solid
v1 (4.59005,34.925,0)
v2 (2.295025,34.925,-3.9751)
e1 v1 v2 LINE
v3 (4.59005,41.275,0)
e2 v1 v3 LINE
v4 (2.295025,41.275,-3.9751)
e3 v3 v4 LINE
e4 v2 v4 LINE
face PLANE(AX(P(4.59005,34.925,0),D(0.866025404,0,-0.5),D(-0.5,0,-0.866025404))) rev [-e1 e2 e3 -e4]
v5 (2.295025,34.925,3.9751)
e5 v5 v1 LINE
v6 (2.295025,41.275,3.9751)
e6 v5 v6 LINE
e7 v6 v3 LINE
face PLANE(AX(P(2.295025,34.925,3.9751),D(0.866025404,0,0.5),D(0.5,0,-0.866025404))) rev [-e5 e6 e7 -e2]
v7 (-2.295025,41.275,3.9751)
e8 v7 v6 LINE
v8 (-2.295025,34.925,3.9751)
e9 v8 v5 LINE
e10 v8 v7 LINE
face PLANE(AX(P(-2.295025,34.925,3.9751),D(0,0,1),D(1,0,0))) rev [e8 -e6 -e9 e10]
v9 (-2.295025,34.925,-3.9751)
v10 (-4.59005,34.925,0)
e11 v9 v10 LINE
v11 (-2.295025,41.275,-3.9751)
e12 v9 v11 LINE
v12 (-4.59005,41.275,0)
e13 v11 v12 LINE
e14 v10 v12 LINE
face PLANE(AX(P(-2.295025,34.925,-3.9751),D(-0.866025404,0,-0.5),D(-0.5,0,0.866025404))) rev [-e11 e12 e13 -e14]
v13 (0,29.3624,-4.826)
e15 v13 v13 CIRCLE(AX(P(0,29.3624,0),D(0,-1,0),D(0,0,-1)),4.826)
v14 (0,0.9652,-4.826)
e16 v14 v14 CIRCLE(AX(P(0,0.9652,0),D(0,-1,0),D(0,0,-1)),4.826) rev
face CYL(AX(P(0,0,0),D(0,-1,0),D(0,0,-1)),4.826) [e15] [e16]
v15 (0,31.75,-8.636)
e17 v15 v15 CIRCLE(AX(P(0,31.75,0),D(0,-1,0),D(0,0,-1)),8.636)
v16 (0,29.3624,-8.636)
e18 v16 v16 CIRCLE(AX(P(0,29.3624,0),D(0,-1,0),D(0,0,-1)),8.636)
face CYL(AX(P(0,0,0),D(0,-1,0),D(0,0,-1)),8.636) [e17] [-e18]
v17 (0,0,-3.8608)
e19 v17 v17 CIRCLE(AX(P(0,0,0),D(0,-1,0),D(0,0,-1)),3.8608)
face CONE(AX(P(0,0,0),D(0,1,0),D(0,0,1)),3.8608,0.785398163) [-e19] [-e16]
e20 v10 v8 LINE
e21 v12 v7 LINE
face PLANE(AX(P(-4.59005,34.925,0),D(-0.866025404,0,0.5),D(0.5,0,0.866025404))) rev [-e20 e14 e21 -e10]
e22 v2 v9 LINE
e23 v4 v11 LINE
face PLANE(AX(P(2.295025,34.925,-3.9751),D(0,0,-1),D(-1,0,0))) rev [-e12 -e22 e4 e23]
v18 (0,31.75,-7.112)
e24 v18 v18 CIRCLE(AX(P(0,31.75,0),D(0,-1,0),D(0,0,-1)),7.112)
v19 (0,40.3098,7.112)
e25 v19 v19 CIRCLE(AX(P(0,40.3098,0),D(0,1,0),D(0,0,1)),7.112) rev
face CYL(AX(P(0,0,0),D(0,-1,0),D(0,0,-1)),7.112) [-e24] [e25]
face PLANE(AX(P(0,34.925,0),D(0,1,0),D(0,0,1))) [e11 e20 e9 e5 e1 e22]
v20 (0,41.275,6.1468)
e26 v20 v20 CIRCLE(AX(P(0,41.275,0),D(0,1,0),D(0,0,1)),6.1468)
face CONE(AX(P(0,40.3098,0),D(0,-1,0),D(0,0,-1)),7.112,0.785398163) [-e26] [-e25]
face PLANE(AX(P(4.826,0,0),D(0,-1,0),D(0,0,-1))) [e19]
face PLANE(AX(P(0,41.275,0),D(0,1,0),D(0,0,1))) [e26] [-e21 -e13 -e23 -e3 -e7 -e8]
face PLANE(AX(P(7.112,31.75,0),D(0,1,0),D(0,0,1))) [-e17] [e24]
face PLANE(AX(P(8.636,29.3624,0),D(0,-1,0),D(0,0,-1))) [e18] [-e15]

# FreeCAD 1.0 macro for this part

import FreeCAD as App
import Part
import Sketcher

V = App.Vector
Q = App.Units.Quantity


def edges_at(feature, points):
    """Names of the edges that pass closest to the given points."""
    edges = feature.Shape.Edges
    near = lambda p: min(range(len(edges)), key=lambda i: edges[i].distToShape(Part.Vertex(*p))[0])
    return sorted({f"Edge{near(p) + 1}" for p in points})


def add_polygon(sketch, points):
    """Adds a closed chain of lines whose ends are joined by coincident constraints."""
    first, n = sketch.GeometryCount, len(points)
    for a, b in zip(points, points[1:] + points[:1]):
        sketch.addGeometry(Part.LineSegment(App.Vector(*a, 0), App.Vector(*b, 0)), False)
    for i in range(n):
        sketch.addConstraint(Sketcher.Constraint("Coincident", first + i, 2, first + (i + 1) % n, 1))

doc = App.newDocument("Part")
params = doc.addObject("Spreadsheet::Sheet", "Params")
for row, (alias, value) in enumerate([
    ("sketch1_width", "0.28 in"),
    ("sketch1_width2", "0.19 in"),
    ("sketch1_width3", "0.15 in"),
    ("sketch1_height", "1.625 in"),
    ("sketch1_height2", "1.156 in"),
    ("revolution_angle", "360 deg"),
    ("pocket1_length", "0.25 in"),
    ("chamfer_size", "0.038 in"),
], start=1):
    params.set(f"A{row}", alias)
    params.set(f"B{row}", "=" + value)
    params.setAlias(f"B{row}", alias)

body = doc.addObject("PartDesign::Body", "Body")

# Sketch on XY plane
sketch1 = body.newObject("Sketcher::SketchObject", "Sketch")
sketch1.AttachmentSupport = (doc.getObject("XY_Plane"), [""])
sketch1.MapMode = "FlatFace"
add_polygon(sketch1, [(7.1, 41.3), (0, 41.3), (0, 0), (4.8, 0), (4.8, 29.4), (8.6, 29.4), (8.6, 31.8), (7.1, 31.8)])  # lines 0-7
sketch1.addConstraint([
    Sketcher.Constraint("Horizontal", 0),
    Sketcher.Constraint("Vertical", 1),
    Sketcher.Constraint("Horizontal", 2),
    Sketcher.Constraint("Vertical", 3),
    Sketcher.Constraint("Horizontal", 4),
    Sketcher.Constraint("Vertical", 5),
    Sketcher.Constraint("Horizontal", 6),
    Sketcher.Constraint("Vertical", 7),
    Sketcher.Constraint("Coincident", 1, 2, -1, 1),
    Sketcher.Constraint("DistanceX", 0, 2, 0, 1, Q("0.28 in")),
    Sketcher.Constraint("DistanceX", 2, 1, 2, 2, Q("0.19 in")),
    Sketcher.Constraint("DistanceX", 4, 1, 4, 2, Q("0.15 in")),
    Sketcher.Constraint("DistanceY", 1, 2, 1, 1, Q("1.625 in")),
    Sketcher.Constraint("DistanceY", 3, 1, 3, 2, Q("1.156 in")),
    Sketcher.Constraint("DistanceY", 5, 1, 5, 2, Q("0.094 in")),
])
sketch1.setExpression("Constraints[17]", "Params.sketch1_width")
sketch1.setExpression("Constraints[18]", "Params.sketch1_width2")
sketch1.setExpression("Constraints[19]", "Params.sketch1_width3")
sketch1.setExpression("Constraints[20]", "Params.sketch1_height")
sketch1.setExpression("Constraints[21]", "Params.sketch1_height2")
revolution = body.newObject("PartDesign::Revolution", "Revolution")
revolution.Profile = sketch1
revolution.ReferenceAxis = (sketch1, ["V_Axis"])
revolution.setExpression("Angle", "Params.revolution_angle")

# Sketch on XZ plane
sketch2 = body.newObject("Sketcher::SketchObject", "Sketch001")
sketch2.AttachmentSupport = (doc.getObject("XZ_Plane"), [""])
sketch2.MapMode = "FlatFace"
sketch2.AttachmentOffset = App.Placement(V(0, 0, -1.625 * 25.4), App.Rotation())
add_polygon(sketch2, [(-2.3, -4), (-4.6, 0), (-2.3, 4), (2.3, 4), (4.6, 0), (2.3, -4)])  # lines 0-5
sketch2.addConstraint([
    Sketcher.Constraint("Horizontal", 2),
    Sketcher.Constraint("Horizontal", 5),
    Sketcher.Constraint("Symmetric", 0, 2, 3, 2, -1, 1),
    Sketcher.Constraint("Symmetric", 1, 2, 4, 2, -1, 1),
    Sketcher.Constraint("PointOnObject", 0, 2, -1),
    Sketcher.Constraint("Parallel", 0, 3),
    Sketcher.Constraint("Vertical", 2, 2, 4, 2),
    Sketcher.Constraint("Angle", 0, Q("120 deg")),
    Sketcher.Constraint("DistanceY", 4, 2, 2, 2, Q("0.313 in")),
    Sketcher.Constraint("DistanceX", 2, 1, 2, 2, 4.59005),
])
pocket1 = body.newObject("PartDesign::Pocket", "Pocket")
pocket1.Profile = sketch2
pocket1.setExpression("Length", "Params.pocket1_length")
pocket1.Reversed = True
doc.recompute()

chamfer = body.newObject("PartDesign::Chamfer", "Chamfer")
chamfer.Base = (pocket1, edges_at(pocket1, [(0, 0, 4.826), (0, 41.275, 7.112)]))
chamfer.setExpression("Size", "Params.chamfer_size")

doc.recompute()
